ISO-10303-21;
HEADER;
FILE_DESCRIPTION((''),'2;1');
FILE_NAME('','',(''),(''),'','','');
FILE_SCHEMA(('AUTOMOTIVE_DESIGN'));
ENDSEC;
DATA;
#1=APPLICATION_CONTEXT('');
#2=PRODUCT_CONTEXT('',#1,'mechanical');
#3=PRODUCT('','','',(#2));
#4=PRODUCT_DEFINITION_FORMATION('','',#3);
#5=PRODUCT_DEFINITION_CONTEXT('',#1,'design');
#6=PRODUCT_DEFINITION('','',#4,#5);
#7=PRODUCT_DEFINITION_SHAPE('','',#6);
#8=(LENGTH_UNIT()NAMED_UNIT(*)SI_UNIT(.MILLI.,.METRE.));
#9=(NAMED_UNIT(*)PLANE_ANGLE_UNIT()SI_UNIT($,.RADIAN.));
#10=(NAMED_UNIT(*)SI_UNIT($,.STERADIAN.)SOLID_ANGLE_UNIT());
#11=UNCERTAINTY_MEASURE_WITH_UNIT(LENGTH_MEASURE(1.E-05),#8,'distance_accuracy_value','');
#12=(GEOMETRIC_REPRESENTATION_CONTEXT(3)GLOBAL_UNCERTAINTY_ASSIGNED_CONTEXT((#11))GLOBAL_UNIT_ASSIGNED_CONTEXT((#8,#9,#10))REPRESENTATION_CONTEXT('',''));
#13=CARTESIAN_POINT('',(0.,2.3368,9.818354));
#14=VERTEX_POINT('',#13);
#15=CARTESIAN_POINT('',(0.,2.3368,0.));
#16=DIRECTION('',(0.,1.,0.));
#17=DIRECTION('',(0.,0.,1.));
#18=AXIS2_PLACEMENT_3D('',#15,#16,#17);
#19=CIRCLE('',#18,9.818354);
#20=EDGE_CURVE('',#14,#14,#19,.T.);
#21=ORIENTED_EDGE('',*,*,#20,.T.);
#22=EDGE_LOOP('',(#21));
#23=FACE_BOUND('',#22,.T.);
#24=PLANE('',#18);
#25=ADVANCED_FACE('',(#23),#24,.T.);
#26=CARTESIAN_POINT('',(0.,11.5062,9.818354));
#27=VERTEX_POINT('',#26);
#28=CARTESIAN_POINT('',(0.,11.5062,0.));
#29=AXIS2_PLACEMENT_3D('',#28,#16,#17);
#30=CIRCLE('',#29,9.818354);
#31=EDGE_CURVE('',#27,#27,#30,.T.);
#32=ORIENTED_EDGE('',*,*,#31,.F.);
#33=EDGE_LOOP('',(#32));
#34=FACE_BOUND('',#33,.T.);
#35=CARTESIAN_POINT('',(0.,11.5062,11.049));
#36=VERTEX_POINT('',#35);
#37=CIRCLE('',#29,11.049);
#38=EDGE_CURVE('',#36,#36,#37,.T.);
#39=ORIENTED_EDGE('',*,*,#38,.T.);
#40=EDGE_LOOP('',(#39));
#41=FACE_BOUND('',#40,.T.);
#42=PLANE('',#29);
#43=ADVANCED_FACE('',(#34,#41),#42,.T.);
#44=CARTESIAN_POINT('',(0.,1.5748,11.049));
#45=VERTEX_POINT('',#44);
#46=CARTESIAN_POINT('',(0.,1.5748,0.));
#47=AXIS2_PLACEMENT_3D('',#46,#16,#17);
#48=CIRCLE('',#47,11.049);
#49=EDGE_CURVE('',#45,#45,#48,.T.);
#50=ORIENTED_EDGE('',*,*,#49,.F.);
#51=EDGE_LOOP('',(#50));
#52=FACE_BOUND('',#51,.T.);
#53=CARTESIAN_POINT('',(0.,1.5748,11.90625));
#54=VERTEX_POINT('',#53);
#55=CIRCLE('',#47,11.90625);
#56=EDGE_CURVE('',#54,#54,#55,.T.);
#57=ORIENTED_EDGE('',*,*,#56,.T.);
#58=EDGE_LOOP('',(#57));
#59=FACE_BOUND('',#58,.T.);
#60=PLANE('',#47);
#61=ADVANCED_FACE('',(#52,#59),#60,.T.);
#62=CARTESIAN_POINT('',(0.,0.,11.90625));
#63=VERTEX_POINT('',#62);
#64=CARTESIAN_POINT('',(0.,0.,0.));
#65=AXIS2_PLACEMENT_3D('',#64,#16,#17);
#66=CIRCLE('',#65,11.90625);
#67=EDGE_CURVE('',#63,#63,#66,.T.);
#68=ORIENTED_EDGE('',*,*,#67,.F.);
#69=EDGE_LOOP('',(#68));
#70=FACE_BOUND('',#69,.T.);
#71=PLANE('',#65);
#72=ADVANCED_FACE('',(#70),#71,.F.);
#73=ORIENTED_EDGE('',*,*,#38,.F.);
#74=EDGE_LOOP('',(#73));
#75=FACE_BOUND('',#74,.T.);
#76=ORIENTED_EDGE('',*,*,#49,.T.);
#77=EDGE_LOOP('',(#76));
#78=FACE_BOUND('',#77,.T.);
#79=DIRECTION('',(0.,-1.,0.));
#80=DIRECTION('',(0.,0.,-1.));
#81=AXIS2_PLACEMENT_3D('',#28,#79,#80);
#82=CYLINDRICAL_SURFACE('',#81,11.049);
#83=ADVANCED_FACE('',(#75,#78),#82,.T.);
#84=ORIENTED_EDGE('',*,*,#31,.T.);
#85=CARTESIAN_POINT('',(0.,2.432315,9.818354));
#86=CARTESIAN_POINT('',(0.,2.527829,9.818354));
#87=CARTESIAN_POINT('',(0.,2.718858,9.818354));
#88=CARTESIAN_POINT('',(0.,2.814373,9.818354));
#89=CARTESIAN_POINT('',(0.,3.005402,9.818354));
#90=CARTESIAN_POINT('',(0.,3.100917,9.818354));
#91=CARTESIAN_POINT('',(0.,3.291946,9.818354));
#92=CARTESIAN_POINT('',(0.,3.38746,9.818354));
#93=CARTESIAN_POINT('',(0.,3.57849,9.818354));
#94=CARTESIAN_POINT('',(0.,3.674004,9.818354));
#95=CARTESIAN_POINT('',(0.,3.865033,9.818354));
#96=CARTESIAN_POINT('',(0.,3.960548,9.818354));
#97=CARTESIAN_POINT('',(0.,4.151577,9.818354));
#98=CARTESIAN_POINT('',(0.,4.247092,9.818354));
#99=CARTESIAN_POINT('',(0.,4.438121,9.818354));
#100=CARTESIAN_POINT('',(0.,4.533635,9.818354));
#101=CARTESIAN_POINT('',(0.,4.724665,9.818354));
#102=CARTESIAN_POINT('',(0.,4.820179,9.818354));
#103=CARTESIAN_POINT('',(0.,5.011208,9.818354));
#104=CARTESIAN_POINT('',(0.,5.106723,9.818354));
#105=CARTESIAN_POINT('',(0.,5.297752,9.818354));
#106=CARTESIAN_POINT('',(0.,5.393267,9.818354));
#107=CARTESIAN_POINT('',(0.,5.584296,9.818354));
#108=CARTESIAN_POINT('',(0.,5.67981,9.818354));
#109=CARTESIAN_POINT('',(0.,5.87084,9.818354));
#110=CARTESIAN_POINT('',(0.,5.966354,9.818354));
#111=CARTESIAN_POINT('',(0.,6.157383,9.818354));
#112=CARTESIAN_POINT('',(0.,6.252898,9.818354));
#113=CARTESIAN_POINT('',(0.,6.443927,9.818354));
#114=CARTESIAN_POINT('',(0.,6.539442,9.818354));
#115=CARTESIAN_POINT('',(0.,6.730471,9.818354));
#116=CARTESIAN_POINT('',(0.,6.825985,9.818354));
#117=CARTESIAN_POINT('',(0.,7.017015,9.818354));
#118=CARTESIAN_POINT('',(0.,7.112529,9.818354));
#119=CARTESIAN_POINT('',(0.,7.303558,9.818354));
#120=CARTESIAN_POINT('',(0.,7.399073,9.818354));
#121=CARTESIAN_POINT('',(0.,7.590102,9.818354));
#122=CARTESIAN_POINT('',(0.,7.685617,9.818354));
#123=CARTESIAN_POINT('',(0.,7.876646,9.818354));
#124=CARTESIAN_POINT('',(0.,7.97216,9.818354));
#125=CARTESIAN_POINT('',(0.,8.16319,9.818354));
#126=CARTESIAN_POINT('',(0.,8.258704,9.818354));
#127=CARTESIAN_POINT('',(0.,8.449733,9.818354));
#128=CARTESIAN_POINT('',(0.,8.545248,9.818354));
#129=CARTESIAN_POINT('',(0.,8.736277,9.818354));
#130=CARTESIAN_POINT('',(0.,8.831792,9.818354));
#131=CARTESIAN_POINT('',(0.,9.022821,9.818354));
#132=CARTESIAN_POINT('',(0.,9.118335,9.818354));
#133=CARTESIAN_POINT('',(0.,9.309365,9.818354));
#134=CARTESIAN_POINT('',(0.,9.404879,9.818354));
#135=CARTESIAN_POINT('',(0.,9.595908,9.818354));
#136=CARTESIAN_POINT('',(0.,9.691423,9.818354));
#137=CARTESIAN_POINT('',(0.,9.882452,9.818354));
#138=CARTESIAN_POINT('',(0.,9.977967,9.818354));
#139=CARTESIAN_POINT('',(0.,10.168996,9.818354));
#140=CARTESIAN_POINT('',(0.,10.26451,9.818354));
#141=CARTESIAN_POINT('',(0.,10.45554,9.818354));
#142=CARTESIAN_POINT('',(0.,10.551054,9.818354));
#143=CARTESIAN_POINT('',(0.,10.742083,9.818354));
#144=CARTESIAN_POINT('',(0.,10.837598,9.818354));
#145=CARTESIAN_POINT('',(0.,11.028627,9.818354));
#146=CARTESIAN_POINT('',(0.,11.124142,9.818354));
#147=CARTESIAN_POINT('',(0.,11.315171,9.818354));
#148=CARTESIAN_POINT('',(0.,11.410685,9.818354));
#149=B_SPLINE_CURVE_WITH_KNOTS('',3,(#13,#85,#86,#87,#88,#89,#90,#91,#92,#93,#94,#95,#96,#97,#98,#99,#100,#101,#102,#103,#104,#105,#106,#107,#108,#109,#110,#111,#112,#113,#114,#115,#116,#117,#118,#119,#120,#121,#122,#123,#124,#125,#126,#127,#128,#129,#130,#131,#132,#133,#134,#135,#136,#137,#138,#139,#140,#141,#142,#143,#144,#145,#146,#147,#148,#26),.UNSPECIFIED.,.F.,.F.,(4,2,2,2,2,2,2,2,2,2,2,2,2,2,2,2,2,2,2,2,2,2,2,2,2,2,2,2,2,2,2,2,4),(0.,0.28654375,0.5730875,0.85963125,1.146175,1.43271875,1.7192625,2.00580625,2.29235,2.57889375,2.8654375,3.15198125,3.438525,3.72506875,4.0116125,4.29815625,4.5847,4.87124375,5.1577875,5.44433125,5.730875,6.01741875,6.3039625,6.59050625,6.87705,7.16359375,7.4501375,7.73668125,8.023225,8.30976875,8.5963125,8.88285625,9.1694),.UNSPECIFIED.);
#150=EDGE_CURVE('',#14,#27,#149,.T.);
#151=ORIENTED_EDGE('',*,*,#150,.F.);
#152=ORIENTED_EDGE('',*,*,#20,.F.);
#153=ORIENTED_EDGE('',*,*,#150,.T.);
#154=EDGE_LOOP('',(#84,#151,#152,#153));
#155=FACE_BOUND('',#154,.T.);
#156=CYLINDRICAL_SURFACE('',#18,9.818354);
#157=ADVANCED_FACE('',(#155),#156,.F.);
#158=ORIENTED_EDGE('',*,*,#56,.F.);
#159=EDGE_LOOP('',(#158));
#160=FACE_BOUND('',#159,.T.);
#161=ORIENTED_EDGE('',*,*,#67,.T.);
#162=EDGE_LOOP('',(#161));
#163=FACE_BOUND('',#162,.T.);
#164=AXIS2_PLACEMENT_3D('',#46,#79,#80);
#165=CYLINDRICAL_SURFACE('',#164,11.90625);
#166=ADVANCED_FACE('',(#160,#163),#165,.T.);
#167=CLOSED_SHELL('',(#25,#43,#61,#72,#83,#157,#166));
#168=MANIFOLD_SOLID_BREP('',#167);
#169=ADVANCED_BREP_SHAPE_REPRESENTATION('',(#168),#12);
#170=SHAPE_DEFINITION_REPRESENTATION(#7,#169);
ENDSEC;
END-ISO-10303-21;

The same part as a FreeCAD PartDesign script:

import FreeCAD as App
import Part
import Sketcher
from FreeCAD import Vector
Q = App.Units.Quantity

doc = App.newDocument("Part")
body = doc.addObject("PartDesign::Body", "Body")

sketch1 = doc.addObject("Sketcher::SketchObject", "Sketch")
body.addObject(sketch1)
sketch1.AttachmentSupport = (doc.XZ_Plane, [""])
sketch1.MapMode = "FlatFace"
sketch1.addGeometry(Part.Circle(Vector(0, 0, 0), Vector(0, 0, 1), 11.90625), False)
sketch1.addConstraint(Sketcher.Constraint("Coincident", 0, 3, -1, 1))
sketch1.addConstraint(Sketcher.Constraint("Diameter", 0, Q("0.9375 in")))
pad1 = doc.addObject("PartDesign::Pad", "Pad")
body.addObject(pad1)
pad1.Profile = sketch1
pad1.Length = Q("0.062 in")
pad1.Reversed = True

sketch2 = doc.addObject("Sketcher::SketchObject", "Sketch001")
body.addObject(sketch2)
sketch2.AttachmentSupport = (doc.XZ_Plane, [""])
sketch2.MapMode = "FlatFace"
sketch2.AttachmentOffset = App.Placement(Vector(0, 0, -0.062 * 25.4), App.Rotation())
sketch2.addGeometry(Part.Circle(Vector(0, 0, 0), Vector(0, 0, 1), 11.049), False)
sketch2.addConstraint(Sketcher.Constraint("Coincident", 0, 3, -1, 1))
sketch2.addConstraint(Sketcher.Constraint("Diameter", 0, Q("0.87 in")))
pad2 = doc.addObject("PartDesign::Pad", "Pad001")
body.addObject(pad2)
pad2.Profile = sketch2
pad2.Length = Q("0.391 in")
pad2.Reversed = True

sketch3 = doc.addObject("Sketcher::SketchObject", "Sketch002")
body.addObject(sketch3)
sketch3.AttachmentSupport = (doc.XZ_Plane, [""])
sketch3.MapMode = "FlatFace"
sketch3.AttachmentOffset = App.Placement(Vector(0, 0, -0.453 * 25.4), App.Rotation())
sketch3.addGeometry(Part.Circle(Vector(0, 0, 0), Vector(0, 0, 1), 9.818354), False)
sketch3.addConstraint(Sketcher.Constraint("Coincident", 0, 3, -1, 1))
sketch3.addConstraint(Sketcher.Constraint("Diameter", 0, 19.636708))
pocket1 = doc.addObject("PartDesign::Pocket", "Pocket")
body.addObject(pocket1)
pocket1.Profile = sketch3
pocket1.Length = Q("0.361 in")
pocket1.Reversed = True

doc.recompute()
